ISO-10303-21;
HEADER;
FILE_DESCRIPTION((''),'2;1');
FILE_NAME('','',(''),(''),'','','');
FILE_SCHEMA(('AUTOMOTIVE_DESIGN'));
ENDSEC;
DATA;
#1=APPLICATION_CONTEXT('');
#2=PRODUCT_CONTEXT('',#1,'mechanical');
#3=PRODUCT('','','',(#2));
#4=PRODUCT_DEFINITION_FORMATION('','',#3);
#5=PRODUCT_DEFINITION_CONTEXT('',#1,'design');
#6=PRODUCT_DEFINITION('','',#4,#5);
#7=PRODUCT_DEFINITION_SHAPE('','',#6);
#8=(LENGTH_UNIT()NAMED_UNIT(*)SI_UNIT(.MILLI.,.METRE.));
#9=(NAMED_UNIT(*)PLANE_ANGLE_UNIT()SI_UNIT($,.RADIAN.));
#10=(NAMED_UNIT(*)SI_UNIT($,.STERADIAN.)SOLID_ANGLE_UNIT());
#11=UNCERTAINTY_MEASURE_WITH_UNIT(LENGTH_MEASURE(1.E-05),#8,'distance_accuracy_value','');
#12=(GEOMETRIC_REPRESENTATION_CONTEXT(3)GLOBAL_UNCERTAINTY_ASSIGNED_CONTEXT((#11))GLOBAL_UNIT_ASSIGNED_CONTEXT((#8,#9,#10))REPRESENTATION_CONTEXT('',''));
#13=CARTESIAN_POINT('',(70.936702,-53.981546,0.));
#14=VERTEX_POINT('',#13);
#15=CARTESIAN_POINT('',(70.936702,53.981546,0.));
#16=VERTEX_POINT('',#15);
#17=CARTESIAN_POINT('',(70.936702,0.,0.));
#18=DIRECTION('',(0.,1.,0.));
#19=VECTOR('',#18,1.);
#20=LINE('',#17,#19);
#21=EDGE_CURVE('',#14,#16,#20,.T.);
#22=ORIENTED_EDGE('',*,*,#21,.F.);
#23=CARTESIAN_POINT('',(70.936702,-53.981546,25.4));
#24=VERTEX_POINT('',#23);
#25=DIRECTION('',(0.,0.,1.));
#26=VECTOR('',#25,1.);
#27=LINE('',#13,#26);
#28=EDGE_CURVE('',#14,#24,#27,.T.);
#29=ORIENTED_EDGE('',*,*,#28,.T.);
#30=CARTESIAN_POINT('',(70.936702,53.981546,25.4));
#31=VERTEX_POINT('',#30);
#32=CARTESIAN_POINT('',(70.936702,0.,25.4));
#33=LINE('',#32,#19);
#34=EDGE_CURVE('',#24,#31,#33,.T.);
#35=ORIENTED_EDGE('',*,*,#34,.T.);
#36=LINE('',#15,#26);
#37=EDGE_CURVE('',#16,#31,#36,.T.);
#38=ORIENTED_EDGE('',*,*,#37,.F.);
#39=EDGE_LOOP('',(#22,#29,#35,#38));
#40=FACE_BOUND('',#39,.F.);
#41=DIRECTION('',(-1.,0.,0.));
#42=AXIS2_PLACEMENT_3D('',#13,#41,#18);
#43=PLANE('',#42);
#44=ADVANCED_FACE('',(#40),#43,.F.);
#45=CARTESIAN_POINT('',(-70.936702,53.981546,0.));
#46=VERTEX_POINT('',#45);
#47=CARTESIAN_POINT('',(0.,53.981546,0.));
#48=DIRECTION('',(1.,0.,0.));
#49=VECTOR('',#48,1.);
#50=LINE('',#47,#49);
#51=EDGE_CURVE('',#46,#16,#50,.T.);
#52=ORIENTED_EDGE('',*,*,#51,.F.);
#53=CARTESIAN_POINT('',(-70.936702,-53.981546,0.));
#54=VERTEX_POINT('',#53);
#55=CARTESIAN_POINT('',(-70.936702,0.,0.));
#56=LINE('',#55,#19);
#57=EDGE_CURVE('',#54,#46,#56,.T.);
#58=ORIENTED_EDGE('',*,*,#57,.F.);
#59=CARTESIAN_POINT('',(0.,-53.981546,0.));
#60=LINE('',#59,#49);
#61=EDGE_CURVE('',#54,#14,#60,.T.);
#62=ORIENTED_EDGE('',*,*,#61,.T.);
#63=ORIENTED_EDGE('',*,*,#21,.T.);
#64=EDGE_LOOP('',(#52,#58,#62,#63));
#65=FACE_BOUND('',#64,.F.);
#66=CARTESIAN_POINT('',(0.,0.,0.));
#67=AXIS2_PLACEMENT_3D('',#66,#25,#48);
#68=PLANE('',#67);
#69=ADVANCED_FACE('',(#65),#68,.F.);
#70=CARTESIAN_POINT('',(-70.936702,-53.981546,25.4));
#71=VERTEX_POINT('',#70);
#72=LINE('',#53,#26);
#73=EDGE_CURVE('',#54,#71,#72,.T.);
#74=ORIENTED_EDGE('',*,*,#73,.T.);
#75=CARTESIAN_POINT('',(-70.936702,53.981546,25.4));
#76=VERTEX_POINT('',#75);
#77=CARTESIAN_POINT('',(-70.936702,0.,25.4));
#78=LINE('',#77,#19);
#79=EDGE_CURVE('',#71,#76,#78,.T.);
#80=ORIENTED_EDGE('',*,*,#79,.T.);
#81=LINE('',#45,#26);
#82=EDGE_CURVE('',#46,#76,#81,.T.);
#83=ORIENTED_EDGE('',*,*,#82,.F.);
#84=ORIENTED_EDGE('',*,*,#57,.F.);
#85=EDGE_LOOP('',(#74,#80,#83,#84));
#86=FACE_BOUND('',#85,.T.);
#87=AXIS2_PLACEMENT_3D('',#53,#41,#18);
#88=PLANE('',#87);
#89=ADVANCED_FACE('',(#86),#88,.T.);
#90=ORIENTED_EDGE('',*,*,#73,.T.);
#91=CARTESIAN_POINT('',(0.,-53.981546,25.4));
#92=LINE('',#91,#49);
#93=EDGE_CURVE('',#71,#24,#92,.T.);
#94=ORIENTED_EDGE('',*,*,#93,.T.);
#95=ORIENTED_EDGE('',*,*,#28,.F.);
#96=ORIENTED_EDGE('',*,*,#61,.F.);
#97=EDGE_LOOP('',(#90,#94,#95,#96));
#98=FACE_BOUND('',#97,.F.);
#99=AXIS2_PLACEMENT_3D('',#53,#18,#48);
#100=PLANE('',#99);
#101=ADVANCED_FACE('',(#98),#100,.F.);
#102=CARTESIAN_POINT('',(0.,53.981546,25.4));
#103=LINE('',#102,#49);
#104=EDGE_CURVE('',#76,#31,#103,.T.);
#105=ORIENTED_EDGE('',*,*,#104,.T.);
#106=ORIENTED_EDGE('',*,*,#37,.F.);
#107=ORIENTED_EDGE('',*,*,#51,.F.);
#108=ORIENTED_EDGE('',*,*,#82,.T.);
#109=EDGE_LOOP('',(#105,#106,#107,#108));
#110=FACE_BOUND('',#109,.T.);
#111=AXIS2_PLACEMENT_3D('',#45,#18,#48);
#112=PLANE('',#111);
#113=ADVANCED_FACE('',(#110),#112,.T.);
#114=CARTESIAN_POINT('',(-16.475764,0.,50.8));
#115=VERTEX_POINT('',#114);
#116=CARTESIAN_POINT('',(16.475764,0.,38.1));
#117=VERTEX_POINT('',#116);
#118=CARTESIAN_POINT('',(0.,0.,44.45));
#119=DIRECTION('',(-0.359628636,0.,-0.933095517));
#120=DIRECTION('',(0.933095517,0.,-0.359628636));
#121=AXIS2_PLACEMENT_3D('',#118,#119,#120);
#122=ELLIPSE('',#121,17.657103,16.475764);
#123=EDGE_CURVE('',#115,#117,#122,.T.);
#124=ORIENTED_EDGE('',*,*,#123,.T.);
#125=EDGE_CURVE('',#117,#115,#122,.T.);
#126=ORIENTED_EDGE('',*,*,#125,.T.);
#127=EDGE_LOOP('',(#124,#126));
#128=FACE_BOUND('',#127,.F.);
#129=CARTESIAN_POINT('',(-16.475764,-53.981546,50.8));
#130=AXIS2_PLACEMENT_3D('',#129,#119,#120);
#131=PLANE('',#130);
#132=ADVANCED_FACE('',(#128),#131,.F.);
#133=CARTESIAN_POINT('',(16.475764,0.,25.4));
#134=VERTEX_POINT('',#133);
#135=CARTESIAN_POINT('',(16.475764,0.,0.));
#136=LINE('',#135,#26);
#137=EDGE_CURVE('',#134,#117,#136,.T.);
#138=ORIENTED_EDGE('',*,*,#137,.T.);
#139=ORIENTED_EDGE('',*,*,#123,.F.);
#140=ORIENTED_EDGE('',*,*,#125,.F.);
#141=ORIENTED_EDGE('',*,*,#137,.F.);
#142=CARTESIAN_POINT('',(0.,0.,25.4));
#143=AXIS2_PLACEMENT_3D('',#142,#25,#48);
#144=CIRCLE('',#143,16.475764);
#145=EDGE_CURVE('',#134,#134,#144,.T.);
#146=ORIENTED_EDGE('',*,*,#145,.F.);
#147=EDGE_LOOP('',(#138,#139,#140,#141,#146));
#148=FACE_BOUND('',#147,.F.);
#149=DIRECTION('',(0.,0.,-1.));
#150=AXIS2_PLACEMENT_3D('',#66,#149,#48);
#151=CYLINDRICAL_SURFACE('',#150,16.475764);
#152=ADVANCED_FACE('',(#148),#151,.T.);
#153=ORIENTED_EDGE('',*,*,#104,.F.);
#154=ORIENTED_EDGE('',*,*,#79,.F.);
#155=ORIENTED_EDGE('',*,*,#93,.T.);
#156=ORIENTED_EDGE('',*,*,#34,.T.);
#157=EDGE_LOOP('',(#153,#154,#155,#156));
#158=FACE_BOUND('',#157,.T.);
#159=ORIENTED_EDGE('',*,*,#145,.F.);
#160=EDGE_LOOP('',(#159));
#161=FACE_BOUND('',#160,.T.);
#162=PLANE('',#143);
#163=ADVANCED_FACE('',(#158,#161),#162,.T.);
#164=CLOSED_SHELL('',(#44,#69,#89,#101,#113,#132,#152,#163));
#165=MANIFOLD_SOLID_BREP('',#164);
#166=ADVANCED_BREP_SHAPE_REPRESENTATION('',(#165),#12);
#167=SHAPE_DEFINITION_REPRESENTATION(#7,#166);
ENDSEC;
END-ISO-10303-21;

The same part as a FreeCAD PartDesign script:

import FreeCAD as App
import Part
import Sketcher
Q = App.Units.Quantity


def add_polygon(sketch, points):
    """Adds a closed chain of lines whose ends are joined by coincident constraints."""
    first, n = sketch.GeometryCount, len(points)
    for a, b in zip(points, points[1:] + points[:1]):
        sketch.addGeometry(Part.LineSegment(App.Vector(*a, 0), App.Vector(*b, 0)), False)
    for i in range(n):
        sketch.addConstraint(Sketcher.Constraint("Coincident", first + i, 2, first + (i + 1) % n, 1))

doc = App.newDocument("Part")
body = doc.addObject("PartDesign::Body", "Body")

sketch1 = body.newObject("Sketcher::SketchObject", "Sketch")
sketch1.AttachmentSupport = (doc.getObject("XY_Plane"), [""])
sketch1.MapMode = "FlatFace"
sketch1.addGeometry(Part.Circle(App.Vector(0, 0, 0), App.Vector(0, 0, 1), 16), False)
sketch1.addConstraint([
    Sketcher.Constraint("Coincident", 0, 3, -1, 1),
    Sketcher.Constraint("Diameter", 0, 32.951528),
])
pad1 = body.newObject("PartDesign::Pad", "Pad")
pad1.Profile = sketch1
pad1.Length = Q("2 in")

sketch2 = body.newObject("Sketcher::SketchObject", "Sketch001")
sketch2.AttachmentSupport = (doc.getObject("XY_Plane"), [""])
sketch2.MapMode = "FlatFace"
add_polygon(sketch2, [(-71, 54), (-71, -54), (71, -54), (71, 54)])
sketch2.addGeometry(Part.Circle(App.Vector(0, 0, 0), App.Vector(0, 0, 1), 16), False)
sketch2.addConstraint([
    Sketcher.Constraint("Vertical", 0),
    Sketcher.Constraint("Horizontal", 1),
    Sketcher.Constraint("Vertical", 2),
    Sketcher.Constraint("Horizontal", 3),
    Sketcher.Constraint("Coincident", 4, 3, -1, 1),
    Sketcher.Constraint("Symmetric", 0, 2, 2, 2, -1, 1),
    Sketcher.Constraint("Diameter", 4, 32.951528),
    Sketcher.Constraint("DistanceX", 0, 2, -1, 1, 70.936702),
    Sketcher.Constraint("DistanceY", 0, 2, 0, 1, 107.963092),
])
pad2 = body.newObject("PartDesign::Pad", "Pad001")
pad2.Profile = sketch2
pad2.Length = Q("1 in")

sketch3 = body.newObject("Sketcher::SketchObject", "Sketch002")
sketch3.AttachmentSupport = (doc.getObject("XZ_Plane"), [""])
sketch3.MapMode = "FlatFace"
sketch3.AttachmentOffset = App.Placement(App.Vector(0, 0, 53.981546), App.Rotation())
add_polygon(sketch3, [(16, 51), (-16, 51), (16, 38)])
sketch3.addConstraint([
    Sketcher.Constraint("Horizontal", 0),
    Sketcher.Constraint("Vertical", 2),
    Sketcher.Constraint("DistanceY", 2, 1, 2, 2, Q("0.5 in")),
    Sketcher.Constraint("DistanceY", -1, 1, 0, 2, Q("2 in")),
    Sketcher.Constraint("DistanceX", 0, 2, 0, 1, 32.951528),
    Sketcher.Constraint("DistanceX", 0, 2, -1, 1, 16.475764),
])
pocket1 = body.newObject("PartDesign::Pocket", "Pocket")
pocket1.Profile = sketch3
pocket1.Type = "ThroughAll"

doc.recompute()
